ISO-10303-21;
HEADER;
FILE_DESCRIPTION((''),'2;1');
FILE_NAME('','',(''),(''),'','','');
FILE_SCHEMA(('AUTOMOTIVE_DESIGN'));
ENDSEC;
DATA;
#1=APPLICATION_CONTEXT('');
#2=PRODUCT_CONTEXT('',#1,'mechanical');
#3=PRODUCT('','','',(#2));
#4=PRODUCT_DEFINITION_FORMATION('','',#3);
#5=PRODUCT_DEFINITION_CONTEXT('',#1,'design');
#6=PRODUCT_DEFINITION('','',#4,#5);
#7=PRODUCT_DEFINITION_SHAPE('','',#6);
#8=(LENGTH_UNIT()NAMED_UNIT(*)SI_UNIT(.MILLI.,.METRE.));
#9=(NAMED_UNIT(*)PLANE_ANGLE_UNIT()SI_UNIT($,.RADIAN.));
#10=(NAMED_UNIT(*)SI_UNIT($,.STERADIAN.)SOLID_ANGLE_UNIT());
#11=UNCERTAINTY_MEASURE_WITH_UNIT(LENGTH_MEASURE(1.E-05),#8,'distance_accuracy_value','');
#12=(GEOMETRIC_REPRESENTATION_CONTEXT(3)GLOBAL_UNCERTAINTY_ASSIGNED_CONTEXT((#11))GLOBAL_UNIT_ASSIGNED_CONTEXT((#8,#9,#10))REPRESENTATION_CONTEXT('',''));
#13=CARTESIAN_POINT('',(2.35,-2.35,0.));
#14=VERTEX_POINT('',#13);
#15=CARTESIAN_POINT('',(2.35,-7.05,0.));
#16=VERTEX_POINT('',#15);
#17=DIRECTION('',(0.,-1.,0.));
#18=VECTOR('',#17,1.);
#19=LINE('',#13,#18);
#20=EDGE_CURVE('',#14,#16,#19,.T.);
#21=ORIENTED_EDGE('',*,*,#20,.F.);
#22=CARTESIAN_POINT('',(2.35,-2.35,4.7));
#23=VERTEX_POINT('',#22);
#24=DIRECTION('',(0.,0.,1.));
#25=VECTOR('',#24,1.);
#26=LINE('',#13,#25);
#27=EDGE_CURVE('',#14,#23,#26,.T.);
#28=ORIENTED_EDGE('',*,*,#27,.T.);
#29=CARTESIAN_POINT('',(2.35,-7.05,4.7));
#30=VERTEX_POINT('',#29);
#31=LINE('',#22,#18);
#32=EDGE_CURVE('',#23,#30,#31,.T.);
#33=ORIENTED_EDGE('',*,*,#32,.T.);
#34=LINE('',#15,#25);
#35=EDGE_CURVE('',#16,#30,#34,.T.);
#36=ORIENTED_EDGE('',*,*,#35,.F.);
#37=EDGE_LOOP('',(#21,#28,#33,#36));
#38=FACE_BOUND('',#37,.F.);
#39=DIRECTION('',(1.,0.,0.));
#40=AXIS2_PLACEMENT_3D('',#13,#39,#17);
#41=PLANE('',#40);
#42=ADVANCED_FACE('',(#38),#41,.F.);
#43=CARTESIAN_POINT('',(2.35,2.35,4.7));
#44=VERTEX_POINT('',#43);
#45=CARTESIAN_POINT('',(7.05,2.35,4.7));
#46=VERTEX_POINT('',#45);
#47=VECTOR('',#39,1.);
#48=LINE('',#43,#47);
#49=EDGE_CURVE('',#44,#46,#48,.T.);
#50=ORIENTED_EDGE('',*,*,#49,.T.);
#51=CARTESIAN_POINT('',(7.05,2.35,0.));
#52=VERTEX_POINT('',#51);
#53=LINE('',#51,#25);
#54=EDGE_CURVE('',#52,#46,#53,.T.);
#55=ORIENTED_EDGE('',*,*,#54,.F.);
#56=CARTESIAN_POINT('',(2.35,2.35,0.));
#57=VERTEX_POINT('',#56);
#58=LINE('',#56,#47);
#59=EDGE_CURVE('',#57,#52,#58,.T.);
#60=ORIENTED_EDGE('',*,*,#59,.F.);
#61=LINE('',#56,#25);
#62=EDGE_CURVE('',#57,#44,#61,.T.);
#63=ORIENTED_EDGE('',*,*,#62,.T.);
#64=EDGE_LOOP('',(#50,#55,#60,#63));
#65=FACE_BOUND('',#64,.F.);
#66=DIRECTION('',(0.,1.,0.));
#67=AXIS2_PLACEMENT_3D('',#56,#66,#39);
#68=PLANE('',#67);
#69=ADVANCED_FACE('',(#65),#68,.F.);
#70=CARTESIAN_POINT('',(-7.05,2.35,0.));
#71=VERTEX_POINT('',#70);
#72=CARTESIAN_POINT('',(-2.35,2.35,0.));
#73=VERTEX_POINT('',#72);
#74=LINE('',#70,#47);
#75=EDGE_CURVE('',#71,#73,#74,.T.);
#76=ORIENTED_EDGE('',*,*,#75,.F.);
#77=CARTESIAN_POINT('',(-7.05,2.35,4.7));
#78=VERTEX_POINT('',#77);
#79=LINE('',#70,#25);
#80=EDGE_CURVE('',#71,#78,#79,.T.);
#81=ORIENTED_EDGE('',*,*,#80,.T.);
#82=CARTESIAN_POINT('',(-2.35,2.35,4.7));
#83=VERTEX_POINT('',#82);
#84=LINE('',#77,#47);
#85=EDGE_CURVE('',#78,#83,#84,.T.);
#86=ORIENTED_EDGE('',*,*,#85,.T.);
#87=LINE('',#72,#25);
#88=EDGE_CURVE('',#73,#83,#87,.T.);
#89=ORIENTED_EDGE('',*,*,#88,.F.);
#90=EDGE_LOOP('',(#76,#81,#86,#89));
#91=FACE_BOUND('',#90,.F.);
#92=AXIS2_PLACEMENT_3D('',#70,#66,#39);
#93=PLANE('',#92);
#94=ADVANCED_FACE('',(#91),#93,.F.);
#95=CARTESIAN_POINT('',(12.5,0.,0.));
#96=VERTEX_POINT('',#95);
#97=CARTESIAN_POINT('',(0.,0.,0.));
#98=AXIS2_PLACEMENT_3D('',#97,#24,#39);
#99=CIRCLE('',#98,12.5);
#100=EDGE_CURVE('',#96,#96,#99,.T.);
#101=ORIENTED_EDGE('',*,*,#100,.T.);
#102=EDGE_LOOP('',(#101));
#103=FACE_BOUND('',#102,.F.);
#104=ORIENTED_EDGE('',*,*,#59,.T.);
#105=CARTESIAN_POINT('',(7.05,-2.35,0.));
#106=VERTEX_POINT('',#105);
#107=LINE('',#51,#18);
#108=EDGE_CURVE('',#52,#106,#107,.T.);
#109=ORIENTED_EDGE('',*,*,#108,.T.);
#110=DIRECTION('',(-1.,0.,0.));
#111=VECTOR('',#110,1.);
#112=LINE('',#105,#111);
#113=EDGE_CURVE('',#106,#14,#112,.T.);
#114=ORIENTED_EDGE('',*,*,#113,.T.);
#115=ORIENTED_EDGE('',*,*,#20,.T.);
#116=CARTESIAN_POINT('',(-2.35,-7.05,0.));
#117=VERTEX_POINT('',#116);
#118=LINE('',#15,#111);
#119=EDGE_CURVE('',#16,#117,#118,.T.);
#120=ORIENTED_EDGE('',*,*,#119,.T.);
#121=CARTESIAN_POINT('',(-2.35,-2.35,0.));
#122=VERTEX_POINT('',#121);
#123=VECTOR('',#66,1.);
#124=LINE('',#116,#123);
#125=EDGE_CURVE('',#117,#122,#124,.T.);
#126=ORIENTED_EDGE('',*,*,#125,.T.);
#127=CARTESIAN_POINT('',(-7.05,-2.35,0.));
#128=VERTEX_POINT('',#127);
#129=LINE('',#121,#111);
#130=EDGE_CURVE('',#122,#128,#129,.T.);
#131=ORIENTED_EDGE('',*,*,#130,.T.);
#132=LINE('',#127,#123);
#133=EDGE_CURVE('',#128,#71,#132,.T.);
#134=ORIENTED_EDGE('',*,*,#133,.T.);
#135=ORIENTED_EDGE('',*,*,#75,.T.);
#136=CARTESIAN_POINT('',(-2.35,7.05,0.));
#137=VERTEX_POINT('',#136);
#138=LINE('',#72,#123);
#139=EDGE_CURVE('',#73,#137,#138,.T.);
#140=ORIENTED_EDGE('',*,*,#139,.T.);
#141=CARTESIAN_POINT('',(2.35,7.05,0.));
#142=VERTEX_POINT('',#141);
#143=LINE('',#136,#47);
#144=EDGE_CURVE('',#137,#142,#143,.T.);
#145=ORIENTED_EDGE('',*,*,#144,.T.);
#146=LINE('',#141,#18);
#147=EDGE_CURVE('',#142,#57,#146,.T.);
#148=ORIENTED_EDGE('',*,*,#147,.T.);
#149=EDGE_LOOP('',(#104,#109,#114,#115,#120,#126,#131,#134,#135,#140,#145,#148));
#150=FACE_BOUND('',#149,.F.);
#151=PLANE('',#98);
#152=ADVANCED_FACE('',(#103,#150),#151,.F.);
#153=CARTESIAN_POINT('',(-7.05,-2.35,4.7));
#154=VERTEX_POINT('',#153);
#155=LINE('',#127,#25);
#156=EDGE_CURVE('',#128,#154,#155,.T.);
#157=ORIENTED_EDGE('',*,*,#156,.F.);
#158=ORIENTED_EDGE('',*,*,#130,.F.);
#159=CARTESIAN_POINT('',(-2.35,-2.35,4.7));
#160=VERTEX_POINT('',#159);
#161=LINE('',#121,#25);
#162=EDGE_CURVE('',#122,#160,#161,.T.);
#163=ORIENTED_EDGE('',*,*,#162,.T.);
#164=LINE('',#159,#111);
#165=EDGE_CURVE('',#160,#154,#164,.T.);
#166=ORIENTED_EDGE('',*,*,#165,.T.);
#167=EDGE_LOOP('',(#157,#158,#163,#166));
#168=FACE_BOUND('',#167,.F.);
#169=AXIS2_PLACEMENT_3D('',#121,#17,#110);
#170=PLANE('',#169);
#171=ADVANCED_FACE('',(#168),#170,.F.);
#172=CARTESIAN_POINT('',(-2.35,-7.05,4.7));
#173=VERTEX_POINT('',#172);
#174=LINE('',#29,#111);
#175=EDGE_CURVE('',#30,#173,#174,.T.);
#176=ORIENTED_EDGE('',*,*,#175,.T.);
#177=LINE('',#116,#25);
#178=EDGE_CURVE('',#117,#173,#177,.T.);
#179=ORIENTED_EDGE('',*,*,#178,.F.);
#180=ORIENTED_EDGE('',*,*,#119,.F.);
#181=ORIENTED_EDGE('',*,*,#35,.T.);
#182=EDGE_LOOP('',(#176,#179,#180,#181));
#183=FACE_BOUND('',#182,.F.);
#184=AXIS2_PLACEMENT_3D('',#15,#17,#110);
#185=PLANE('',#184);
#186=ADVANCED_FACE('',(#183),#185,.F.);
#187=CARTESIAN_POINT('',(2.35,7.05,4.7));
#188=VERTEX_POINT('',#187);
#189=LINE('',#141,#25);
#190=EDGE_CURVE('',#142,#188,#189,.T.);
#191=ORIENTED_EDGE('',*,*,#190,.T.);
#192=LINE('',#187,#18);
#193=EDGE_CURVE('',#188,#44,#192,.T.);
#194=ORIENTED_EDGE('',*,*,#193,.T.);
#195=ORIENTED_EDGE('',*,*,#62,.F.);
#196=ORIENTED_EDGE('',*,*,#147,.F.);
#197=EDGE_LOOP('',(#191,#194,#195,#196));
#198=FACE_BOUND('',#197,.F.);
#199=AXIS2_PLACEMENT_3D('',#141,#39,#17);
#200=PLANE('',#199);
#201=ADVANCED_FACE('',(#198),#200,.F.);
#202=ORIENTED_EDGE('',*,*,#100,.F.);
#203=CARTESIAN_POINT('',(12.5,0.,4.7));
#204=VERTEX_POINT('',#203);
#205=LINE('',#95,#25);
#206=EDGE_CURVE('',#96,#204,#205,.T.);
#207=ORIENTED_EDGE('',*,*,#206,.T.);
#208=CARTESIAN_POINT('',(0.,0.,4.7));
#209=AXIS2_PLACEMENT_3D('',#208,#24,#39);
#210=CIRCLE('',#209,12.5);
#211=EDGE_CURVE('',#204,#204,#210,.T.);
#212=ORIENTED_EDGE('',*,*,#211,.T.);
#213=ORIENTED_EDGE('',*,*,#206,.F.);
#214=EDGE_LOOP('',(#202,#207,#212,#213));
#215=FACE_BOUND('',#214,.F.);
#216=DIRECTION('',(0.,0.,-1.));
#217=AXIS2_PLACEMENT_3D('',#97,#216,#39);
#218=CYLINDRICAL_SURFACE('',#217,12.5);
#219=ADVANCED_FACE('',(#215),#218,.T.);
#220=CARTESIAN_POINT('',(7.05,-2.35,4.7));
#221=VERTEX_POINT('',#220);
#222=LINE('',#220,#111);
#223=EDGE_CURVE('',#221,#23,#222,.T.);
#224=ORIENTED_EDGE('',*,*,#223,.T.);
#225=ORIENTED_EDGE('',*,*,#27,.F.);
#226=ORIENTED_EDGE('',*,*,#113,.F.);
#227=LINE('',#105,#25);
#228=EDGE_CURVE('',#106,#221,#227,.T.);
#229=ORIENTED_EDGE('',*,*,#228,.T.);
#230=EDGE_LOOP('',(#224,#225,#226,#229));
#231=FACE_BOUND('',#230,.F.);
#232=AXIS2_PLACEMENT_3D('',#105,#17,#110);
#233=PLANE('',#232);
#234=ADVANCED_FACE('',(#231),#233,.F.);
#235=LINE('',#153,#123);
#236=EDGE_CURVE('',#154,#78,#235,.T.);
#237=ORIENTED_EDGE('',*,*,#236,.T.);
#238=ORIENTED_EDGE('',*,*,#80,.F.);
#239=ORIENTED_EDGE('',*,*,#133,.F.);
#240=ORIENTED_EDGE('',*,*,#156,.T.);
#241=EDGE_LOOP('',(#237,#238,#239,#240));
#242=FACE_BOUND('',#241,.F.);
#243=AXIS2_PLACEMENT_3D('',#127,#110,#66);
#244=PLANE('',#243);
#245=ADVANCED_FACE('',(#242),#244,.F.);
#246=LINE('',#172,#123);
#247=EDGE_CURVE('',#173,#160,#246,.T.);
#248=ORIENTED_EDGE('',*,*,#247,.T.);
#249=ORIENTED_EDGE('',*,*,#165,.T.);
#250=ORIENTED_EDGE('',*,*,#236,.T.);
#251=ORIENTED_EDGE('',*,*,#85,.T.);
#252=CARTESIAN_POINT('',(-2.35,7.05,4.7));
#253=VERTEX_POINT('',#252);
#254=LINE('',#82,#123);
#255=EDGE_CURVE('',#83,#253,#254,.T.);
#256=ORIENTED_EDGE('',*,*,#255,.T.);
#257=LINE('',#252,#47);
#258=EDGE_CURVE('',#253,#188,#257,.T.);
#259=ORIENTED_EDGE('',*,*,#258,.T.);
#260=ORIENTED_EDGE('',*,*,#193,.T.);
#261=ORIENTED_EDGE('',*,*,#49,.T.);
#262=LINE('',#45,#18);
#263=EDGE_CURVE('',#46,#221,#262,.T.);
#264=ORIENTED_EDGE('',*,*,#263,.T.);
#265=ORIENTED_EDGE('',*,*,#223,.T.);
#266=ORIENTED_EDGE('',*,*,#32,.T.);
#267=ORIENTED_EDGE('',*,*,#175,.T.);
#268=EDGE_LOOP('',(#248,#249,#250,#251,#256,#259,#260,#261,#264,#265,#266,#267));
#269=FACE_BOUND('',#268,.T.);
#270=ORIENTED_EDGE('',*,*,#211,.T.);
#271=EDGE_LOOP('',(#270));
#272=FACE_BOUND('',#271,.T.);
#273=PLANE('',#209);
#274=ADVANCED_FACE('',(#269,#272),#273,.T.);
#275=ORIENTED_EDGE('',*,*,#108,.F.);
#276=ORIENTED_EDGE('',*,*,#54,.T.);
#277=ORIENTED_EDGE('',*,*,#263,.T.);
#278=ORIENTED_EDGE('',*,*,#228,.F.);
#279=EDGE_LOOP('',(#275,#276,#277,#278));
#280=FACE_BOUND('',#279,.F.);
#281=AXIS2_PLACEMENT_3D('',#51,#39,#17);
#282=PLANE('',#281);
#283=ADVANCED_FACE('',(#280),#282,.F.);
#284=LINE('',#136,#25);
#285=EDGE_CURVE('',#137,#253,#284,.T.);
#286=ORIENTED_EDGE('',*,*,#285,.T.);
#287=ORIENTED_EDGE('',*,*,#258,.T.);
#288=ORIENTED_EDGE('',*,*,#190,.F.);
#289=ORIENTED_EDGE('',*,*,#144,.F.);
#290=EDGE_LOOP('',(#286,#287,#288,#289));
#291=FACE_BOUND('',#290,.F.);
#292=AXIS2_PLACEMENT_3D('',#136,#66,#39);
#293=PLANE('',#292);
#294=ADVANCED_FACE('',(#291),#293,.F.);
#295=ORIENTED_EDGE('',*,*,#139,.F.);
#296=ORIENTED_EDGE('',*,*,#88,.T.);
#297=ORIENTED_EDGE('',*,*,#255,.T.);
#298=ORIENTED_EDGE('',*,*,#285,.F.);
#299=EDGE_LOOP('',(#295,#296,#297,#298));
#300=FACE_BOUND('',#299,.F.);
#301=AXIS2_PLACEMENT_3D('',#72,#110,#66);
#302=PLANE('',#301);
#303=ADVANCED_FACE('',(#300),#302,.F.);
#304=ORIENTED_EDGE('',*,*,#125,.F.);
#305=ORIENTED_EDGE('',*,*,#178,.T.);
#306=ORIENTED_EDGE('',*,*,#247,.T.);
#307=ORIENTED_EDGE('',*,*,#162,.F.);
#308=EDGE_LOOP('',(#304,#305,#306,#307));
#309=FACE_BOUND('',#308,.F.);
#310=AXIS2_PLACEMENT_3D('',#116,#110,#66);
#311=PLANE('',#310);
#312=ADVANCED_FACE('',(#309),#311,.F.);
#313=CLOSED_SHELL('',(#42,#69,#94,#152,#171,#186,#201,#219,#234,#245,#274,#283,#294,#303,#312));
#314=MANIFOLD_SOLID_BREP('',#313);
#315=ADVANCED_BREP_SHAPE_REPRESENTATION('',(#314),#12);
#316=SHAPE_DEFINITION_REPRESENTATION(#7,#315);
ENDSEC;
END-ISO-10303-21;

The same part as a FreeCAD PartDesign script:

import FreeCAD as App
import Part
import Sketcher
from FreeCAD import Vector

doc = App.newDocument("Part")
params = doc.addObject("Spreadsheet::Sheet", "Params")
for row, (alias, value) in enumerate([
    ("sketch1_diameter", "25 mm"),
    ("sketch1_width", "4.7 mm"),
    ("pad1_length", "4.7 mm"),
], start=1):
    params.set(f"A{row}", alias)
    params.set(f"B{row}", "=" + value)
    params.setAlias(f"B{row}", alias)

body = doc.addObject("PartDesign::Body", "Body")

# Sketch on XY plane
sketch1 = doc.addObject("Sketcher::SketchObject", "Sketch")
body.addObject(sketch1)
sketch1.AttachmentSupport = (doc.XY_Plane, [""])
sketch1.MapMode = "FlatFace"
sketch1.addGeometry(Part.Circle(Vector(0, 0, 0), Vector(0, 0, 1), 12.5), False)
sketch1.addGeometry(Part.LineSegment(Vector(-2.35, -2.35, 0), Vector(-7.05, -2.35, 0)), False)
sketch1.addGeometry(Part.LineSegment(Vector(-7.05, -2.35, 0), Vector(-7.05, 2.35, 0)), False)
sketch1.addGeometry(Part.LineSegment(Vector(-7.05, 2.35, 0), Vector(-2.35, 2.35, 0)), False)
sketch1.addGeometry(Part.LineSegment(Vector(-2.35, 2.35, 0), Vector(-2.35, 7.05, 0)), False)
sketch1.addGeometry(Part.LineSegment(Vector(-2.35, 7.05, 0), Vector(2.35, 7.05, 0)), False)
sketch1.addGeometry(Part.LineSegment(Vector(2.35, 7.05, 0), Vector(2.35, 2.35, 0)), False)
sketch1.addGeometry(Part.LineSegment(Vector(2.35, 2.35, 0), Vector(7.05, 2.35, 0)), False)
sketch1.addGeometry(Part.LineSegment(Vector(7.05, 2.35, 0), Vector(7.05, -2.35, 0)), False)
sketch1.addGeometry(Part.LineSegment(Vector(7.05, -2.35, 0), Vector(2.35, -2.35, 0)), False)
sketch1.addGeometry(Part.LineSegment(Vector(2.35, -2.35, 0), Vector(2.35, -7.05, 0)), False)
sketch1.addGeometry(Part.LineSegment(Vector(2.35, -7.05, 0), Vector(-2.35, -7.05, 0)), False)
sketch1.addGeometry(Part.LineSegment(Vector(-2.35, -7.05, 0), Vector(-2.35, -2.35, 0)), False)
sketch1.addConstraint(Sketcher.Constraint("Coincident", 1, 2, 2, 1))
sketch1.addConstraint(Sketcher.Constraint("Coincident", 2, 2, 3, 1))
sketch1.addConstraint(Sketcher.Constraint("Coincident", 3, 2, 4, 1))
sketch1.addConstraint(Sketcher.Constraint("Coincident", 4, 2, 5, 1))
sketch1.addConstraint(Sketcher.Constraint("Coincident", 5, 2, 6, 1))
sketch1.addConstraint(Sketcher.Constraint("Coincident", 6, 2, 7, 1))
sketch1.addConstraint(Sketcher.Constraint("Coincident", 7, 2, 8, 1))
sketch1.addConstraint(Sketcher.Constraint("Coincident", 8, 2, 9, 1))
sketch1.addConstraint(Sketcher.Constraint("Coincident", 9, 2, 10, 1))
sketch1.addConstraint(Sketcher.Constraint("Coincident", 10, 2, 11, 1))
sketch1.addConstraint(Sketcher.Constraint("Coincident", 11, 2, 12, 1))
sketch1.addConstraint(Sketcher.Constraint("Coincident", 12, 2, 1, 1))
sketch1.addConstraint(Sketcher.Constraint("Horizontal", 1))
sketch1.addConstraint(Sketcher.Constraint("Vertical", 2))
sketch1.addConstraint(Sketcher.Constraint("Horizontal", 3))
sketch1.addConstraint(Sketcher.Constraint("Vertical", 4))
sketch1.addConstraint(Sketcher.Constraint("Horizontal", 5))
sketch1.addConstraint(Sketcher.Constraint("Vertical", 6))
sketch1.addConstraint(Sketcher.Constraint("Horizontal", 7))
sketch1.addConstraint(Sketcher.Constraint("Vertical", 8))
sketch1.addConstraint(Sketcher.Constraint("Horizontal", 9))
sketch1.addConstraint(Sketcher.Constraint("Vertical", 10))
sketch1.addConstraint(Sketcher.Constraint("Horizontal", 11))
sketch1.addConstraint(Sketcher.Constraint("Vertical", 12))
sketch1.addConstraint(Sketcher.Constraint("Coincident", 0, 3, -1, 1))
sketch1.addConstraint(Sketcher.Constraint("Symmetric", 1, 2, 7, 2, -1, 1))
sketch1.addConstraint(Sketcher.Constraint("Symmetric", 3, 2, 9, 2, -1, 1))
sketch1.addConstraint(Sketcher.Constraint("Symmetric", 5, 2, 11, 2, -1, 1))
sketch1.addConstraint(Sketcher.Constraint("Symmetric", 3, 2, 6, 2, -2))
sketch1.addConstraint(Sketcher.Constraint("Equal", 3, 5))
sketch1.addConstraint(Sketcher.Constraint("Equal", 11, 2))
sketch1.addConstraint(Sketcher.Constraint("Equal", 2, 4))
sketch1.addConstraint(Sketcher.Constraint("Diameter", 0, 25.0))
sketch1.addConstraint(Sketcher.Constraint("DistanceX", 1, 2, 1, 1, 4.7))
sketch1.setExpression("Constraints[32]", "Params.sketch1_diameter")
sketch1.setExpression("Constraints[33]", "Params.sketch1_width")
pad1 = doc.addObject("PartDesign::Pad", "Pad")
body.addObject(pad1)
pad1.Profile = sketch1
pad1.setExpression("Length", "Params.pad1_length")

doc.recompute()
